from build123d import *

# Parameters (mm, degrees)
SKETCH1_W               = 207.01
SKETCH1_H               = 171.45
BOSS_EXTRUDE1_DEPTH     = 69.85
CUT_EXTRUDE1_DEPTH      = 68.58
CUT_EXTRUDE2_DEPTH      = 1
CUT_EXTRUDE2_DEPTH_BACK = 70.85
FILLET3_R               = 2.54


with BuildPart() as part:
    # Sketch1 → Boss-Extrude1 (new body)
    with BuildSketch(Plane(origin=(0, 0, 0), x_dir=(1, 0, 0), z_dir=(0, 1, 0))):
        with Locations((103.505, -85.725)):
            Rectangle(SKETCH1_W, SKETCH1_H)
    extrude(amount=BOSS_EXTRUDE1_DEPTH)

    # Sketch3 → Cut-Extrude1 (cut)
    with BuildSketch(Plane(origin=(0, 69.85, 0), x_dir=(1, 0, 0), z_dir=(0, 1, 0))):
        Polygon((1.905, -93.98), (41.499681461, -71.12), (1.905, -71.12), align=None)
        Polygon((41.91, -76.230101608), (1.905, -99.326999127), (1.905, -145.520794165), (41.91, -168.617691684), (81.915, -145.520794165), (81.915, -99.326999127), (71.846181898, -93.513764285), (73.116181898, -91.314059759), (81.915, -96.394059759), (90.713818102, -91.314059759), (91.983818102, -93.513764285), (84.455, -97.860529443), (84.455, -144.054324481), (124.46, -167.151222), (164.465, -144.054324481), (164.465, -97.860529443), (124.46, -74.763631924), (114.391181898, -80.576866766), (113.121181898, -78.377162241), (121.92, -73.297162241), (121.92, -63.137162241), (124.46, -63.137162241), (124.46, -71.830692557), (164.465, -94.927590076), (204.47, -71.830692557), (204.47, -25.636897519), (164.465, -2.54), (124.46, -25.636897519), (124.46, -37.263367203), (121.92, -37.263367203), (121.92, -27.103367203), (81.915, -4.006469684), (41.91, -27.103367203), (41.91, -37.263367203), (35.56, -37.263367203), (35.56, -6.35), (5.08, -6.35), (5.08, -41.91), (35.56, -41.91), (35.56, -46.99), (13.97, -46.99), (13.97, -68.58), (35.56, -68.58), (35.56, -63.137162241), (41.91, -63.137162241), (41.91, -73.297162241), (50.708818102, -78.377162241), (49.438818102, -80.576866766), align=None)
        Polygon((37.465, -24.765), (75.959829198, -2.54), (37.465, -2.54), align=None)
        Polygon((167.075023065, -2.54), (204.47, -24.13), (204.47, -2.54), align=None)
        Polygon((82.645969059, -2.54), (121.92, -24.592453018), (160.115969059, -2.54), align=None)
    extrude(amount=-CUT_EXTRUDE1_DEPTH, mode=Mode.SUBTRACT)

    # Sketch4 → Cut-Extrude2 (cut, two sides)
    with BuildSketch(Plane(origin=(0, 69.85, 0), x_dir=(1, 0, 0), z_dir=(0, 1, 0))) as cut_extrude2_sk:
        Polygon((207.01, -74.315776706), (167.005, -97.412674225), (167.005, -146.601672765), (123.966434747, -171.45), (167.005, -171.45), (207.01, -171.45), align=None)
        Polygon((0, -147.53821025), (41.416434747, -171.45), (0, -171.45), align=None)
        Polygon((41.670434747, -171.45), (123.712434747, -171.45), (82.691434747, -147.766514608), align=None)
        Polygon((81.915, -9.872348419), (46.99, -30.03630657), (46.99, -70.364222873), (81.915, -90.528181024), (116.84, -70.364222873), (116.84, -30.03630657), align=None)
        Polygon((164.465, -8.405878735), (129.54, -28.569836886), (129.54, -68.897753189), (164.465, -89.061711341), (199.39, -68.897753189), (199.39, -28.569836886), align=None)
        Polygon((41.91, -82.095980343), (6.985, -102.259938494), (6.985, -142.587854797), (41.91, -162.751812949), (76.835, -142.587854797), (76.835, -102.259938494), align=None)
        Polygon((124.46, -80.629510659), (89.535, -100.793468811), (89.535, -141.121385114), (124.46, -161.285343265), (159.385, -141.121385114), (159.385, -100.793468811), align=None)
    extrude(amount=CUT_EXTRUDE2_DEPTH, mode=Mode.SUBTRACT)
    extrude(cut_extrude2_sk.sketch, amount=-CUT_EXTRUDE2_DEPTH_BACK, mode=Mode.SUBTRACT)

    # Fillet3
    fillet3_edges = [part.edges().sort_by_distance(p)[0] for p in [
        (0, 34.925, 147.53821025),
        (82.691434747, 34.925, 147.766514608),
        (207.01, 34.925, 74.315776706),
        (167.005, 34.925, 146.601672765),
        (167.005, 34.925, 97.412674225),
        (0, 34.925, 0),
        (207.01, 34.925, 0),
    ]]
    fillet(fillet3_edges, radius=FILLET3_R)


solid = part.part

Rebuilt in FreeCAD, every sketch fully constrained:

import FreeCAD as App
import Part
import Sketcher
Q = App.Units.Quantity


def edges_at(feature, points):
    """Names of the edges that pass closest to the given points."""
    edges = feature.Shape.Edges
    near = lambda p: min(range(len(edges)), key=lambda i: edges[i].distToShape(Part.Vertex(*p))[0])
    return sorted({f"Edge{near(p) + 1}" for p in points})


def add_polygon(sketch, points):
    """Adds a closed chain of lines whose ends are joined by coincident constraints."""
    first, n = sketch.GeometryCount, len(points)
    for a, b in zip(points, points[1:] + points[:1]):
        sketch.addGeometry(Part.LineSegment(App.Vector(*a, 0), App.Vector(*b, 0)), False)
    for i in range(n):
        sketch.addConstraint(Sketcher.Constraint("Coincident", first + i, 2, first + (i + 1) % n, 1))

doc = App.newDocument("Part")
body = doc.addObject("PartDesign::Body", "Body")

sketch1 = body.newObject("Sketcher::SketchObject", "Sketch")
sketch1.AttachmentSupport = (doc.getObject("XZ_Plane"), [""])
sketch1.MapMode = "FlatFace"
add_polygon(sketch1, [(0, 0), (0, 171), (207, 171), (207, 0)])
sketch1.addConstraint([
    Sketcher.Constraint("Vertical", 0),
    Sketcher.Constraint("Horizontal", 1),
    Sketcher.Constraint("Vertical", 2),
    Sketcher.Constraint("Horizontal", 3),
    Sketcher.Constraint("Coincident", 3, 2, -1, 1),
    Sketcher.Constraint("DistanceX", 1, 1, 1, 2, Q("8.15 in")),
    Sketcher.Constraint("DistanceY", 0, 1, 0, 2, Q("6.75 in")),
])
pad1 = body.newObject("PartDesign::Pad", "Pad")
pad1.Profile = sketch1
pad1.Length = Q("2.75 in")
pad1.Reversed = True

sketch2 = body.newObject("Sketcher::SketchObject", "Sketch001")
sketch2.AttachmentSupport = (doc.getObject("XZ_Plane"), [""])
sketch2.MapMode = "FlatFace"
sketch2.AttachmentOffset = App.Placement(App.Vector(0, 0, -2.75 * 25.4), App.Rotation())
add_polygon(sketch2, [(1.9, 94), (41.5, 71.1), (1.9, 71.1)])
add_polygon(sketch2, [(41.9, 76.2), (1.9, 99.3), (1.9, 145.5), (41.9, 168.6), (81.9, 145.5), (81.9, 99.3), (71.8, 93.5), (73.1, 91.3), (81.9, 96.4), (90.7, 91.3), (92, 93.5), (84.5, 97.9), (84.5, 144.1), (124.5, 167.2), (164.5, 144.1), (164.5, 97.9), (124.5, 74.8), (114.4, 80.6), (113.1, 78.4), (121.9, 73.3), (121.9, 63.1), (124.5, 63.1), (124.5, 71.8), (164.5, 94.9), (204.5, 71.8), (204.5, 25.6), (164.5, 2.5), (124.5, 25.6), (124.5, 37.3), (121.9, 37.3), (121.9, 27.1), (81.9, 4), (41.9, 27.1), (41.9, 37.3), (35.6, 37.3), (35.6, 6.3), (5.1, 6.3), (5.1, 41.9), (35.6, 41.9), (35.6, 47), (14, 47), (14, 68.6), (35.6, 68.6), (35.6, 63.1), (41.9, 63.1), (41.9, 73.3), (50.7, 78.4), (49.4, 80.6)])
add_polygon(sketch2, [(37.5, 24.8), (76, 2.5), (37.5, 2.5)])
add_polygon(sketch2, [(167.1, 2.5), (204.5, 24.1), (204.5, 2.5)])
add_polygon(sketch2, [(82.6, 2.5), (121.9, 24.6), (160.1, 2.5)])
sketch2.addConstraint([
    Sketcher.Constraint("Horizontal", 1),
    Sketcher.Constraint("Vertical", 2),
    Sketcher.Constraint("Vertical", 4),
    Sketcher.Constraint("Vertical", 7),
    Sketcher.Constraint("Vertical", 14),
    Sketcher.Constraint("Vertical", 17),
    Sketcher.Constraint("Vertical", 22),
    Sketcher.Constraint("Horizontal", 23),
    Sketcher.Constraint("Vertical", 24),
    Sketcher.Constraint("Vertical", 27),
    Sketcher.Constraint("Vertical", 30),
    Sketcher.Constraint("Horizontal", 31),
    Sketcher.Constraint("Vertical", 32),
    Sketcher.Constraint("Vertical", 35),
    Sketcher.Constraint("Horizontal", 36),
    Sketcher.Constraint("Vertical", 37),
    Sketcher.Constraint("Horizontal", 38),
    Sketcher.Constraint("Vertical", 39),
    Sketcher.Constraint("Horizontal", 40),
    Sketcher.Constraint("Vertical", 41),
    Sketcher.Constraint("Horizontal", 42),
    Sketcher.Constraint("Vertical", 43),
    Sketcher.Constraint("Horizontal", 44),
    Sketcher.Constraint("Vertical", 45),
    Sketcher.Constraint("Horizontal", 46),
    Sketcher.Constraint("Vertical", 47),
    Sketcher.Constraint("Horizontal", 52),
    Sketcher.Constraint("Vertical", 53),
    Sketcher.Constraint("Vertical", 55),
    Sketcher.Constraint("Horizontal", 56),
    Sketcher.Constraint("Horizontal", 59),
    Sketcher.Constraint("Parallel", 0, 3),
    Sketcher.Constraint("Parallel", 3, 6),
    Sketcher.Constraint("Parallel", 5, 8),
    Sketcher.Constraint("Perpendicular", 8, 9),
    Sketcher.Constraint("Perpendicular", 9, 10),
    Sketcher.Constraint("Parallel", 6, 11),
    Sketcher.Constraint("Perpendicular", 11, 12),
    Sketcher.Constraint("Perpendicular", 12, 13),
    Sketcher.Constraint("Parallel", 10, 15),
    Sketcher.Constraint("Parallel", 13, 16),
    Sketcher.Constraint("Parallel", 15, 18),
    Sketcher.Constraint("Parallel", 16, 19),
    Sketcher.Constraint("Perpendicular", 19, 20),
    Sketcher.Constraint("Perpendicular", 20, 21),
    Sketcher.Constraint("Parallel", 18, 25),
    Sketcher.Constraint("Parallel", 21, 26),
    Sketcher.Constraint("Parallel", 25, 28),
    Sketcher.Constraint("Parallel", 26, 29),
    Sketcher.Constraint("Parallel", 28, 33),
    Sketcher.Constraint("Parallel", 29, 34),
    Sketcher.Constraint("Parallel", 33, 48),
    Sketcher.Constraint("Perpendicular", 48, 49),
    Sketcher.Constraint("Perpendicular", 49, 50),
    Sketcher.Constraint("Parallel", 34, 51),
    Sketcher.Constraint("Parallel", 50, 54),
    Sketcher.Constraint("Parallel", 51, 58),
    Sketcher.Constraint("Horizontal", 4, 2, 6, 2),
    Sketcher.Constraint("Horizontal", 3, 2, 7, 2),
    Sketcher.Constraint("Horizontal", 9, 2, 11, 2),
    Sketcher.Constraint("Horizontal", 8, 2, 12, 2),
    Sketcher.Constraint("Horizontal", 14, 2, 16, 2),
    Sketcher.Constraint("Horizontal", 13, 2, 17, 2),
    Sketcher.Constraint("Horizontal", 24, 2, 26, 2),
    Sketcher.Constraint("Horizontal", 27, 2, 29, 2),
    Sketcher.Constraint("Horizontal", 32, 2, 34, 2),
    Sketcher.Constraint("Horizontal", 31, 2, 35, 2),
    Sketcher.Constraint("Horizontal", 23, 2, 45, 2),
    Sketcher.Constraint("Horizontal", 21, 2, 47, 2),
    Sketcher.Constraint("Horizontal", 20, 2, 48, 2),
    Sketcher.Constraint("Horizontal", 19, 2, 49, 2),
    Sketcher.Constraint("Horizontal", 28, 2, 51, 2),
    Sketcher.Constraint("Horizontal", 52, 2, 55, 2),
    Sketcher.Constraint("Horizontal", 56, 2, 58, 2),
    Sketcher.Constraint("Vertical", 2, 2, 3, 2),
    Sketcher.Constraint("Vertical", 7, 2, 10, 2),
    Sketcher.Constraint("Vertical", 15, 2, 18, 2),
    Sketcher.Constraint("Vertical", 18, 2, 23, 2),
    Sketcher.Constraint("Vertical", 17, 2, 25, 2),
    Sketcher.Constraint("Vertical", 25, 2, 28, 2),
    Sketcher.Constraint("Vertical", 24, 2, 29, 2),
    Sketcher.Constraint("Vertical", 22, 2, 31, 2),
    Sketcher.Constraint("Vertical", 10, 2, 33, 2),
    Sketcher.Constraint("Vertical", 5, 2, 34, 2),
    Sketcher.Constraint("Vertical", 37, 2, 40, 2),
    Sketcher.Constraint("Vertical", 41, 2, 44, 2),
    Sketcher.Constraint("Vertical", 35, 2, 46, 2),
    Sketcher.Constraint("Vertical", 27, 2, 54, 2),
    Sketcher.Constraint("Vertical", 32, 2, 57, 2),
    Sketcher.Constraint("Equal", 7, 14),
    Sketcher.Constraint("Equal", 17, 27),
    Sketcher.Constraint("Equal", 22, 32),
    Sketcher.Constraint("Equal", 44, 43),
    Sketcher.Constraint("Equal", 43, 55),
    Sketcher.Constraint("Equal", 6, 15),
    Sketcher.Constraint("Equal", 8, 19),
    Sketcher.Constraint("Equal", 12, 20),
    Sketcher.Constraint("Equal", 11, 21),
    Sketcher.Constraint("DistanceX", 23, 1, 23, 2, Q("0.1 in")),
    Sketcher.Constraint("DistanceX", 38, 2, 38, 1, Q("1.2 in")),
    Sketcher.Constraint("DistanceY", 2, 1, 2, 2, Q("0.9 in")),
    Sketcher.Constraint("DistanceY", 22, 2, 22, 1, Q("0.4 in")),
    Sketcher.Constraint("DistanceY", 39, 1, 39, 2, Q("1.4 in")),
    Sketcher.Constraint("DistanceY", 41, 1, 41, 2, Q("0.2 in")),
    Sketcher.Constraint("Angle", 0, Q("-30 deg")),
    Sketcher.Constraint("DistanceY", 43, 2, 2, 2, Q("1 in")),
    Sketcher.Constraint("Distance", 10, Q("0.4 in")),
    Sketcher.Constraint("Distance", 54, Q("1.7 in")),
    Sketcher.Constraint("DistanceX", 36, 2, 36, 1, Q("0.25 in")),
    Sketcher.Constraint("DistanceX", 59, 2, 59, 1, Q("3.05 in")),
    Sketcher.Constraint("DistanceY", -1, 1, 0, 2, Q("2.8 in")),
    Sketcher.Constraint("DistanceX", -1, 1, 15, 2, Q("4.9 in")),
    Sketcher.Constraint("DistanceY", -1, 1, 28, 2, Q("0.1 in")),
    Sketcher.Constraint("DistanceX", -1, 1, 36, 2, Q("1.4 in")),
    Sketcher.Constraint("Distance", 51, Q("1.75 in")),
    Sketcher.Constraint("DistanceX", -1, 1, 52, 2, Q("1.475 in")),
    Sketcher.Constraint("DistanceY", 24, 1, 24, 2, 8.69353),
    Sketcher.Constraint("DistanceY", 30, 1, 30, 2, 11.62647),
    Sketcher.Constraint("DistanceY", -1, 1, 3, 2, 99.326999),
    Sketcher.Constraint("Distance", 57, 45.041761),
])
pocket1 = body.newObject("PartDesign::Pocket", "Pocket")
pocket1.Profile = sketch2
pocket1.Length = Q("2.7 in")
pocket1.Reversed = True

sketch3 = body.newObject("Sketcher::SketchObject", "Sketch002")
sketch3.AttachmentSupport = (doc.getObject("XZ_Plane"), [""])
sketch3.MapMode = "FlatFace"
sketch3.AttachmentOffset = App.Placement(App.Vector(0, 0, -2.75 * 25.4), App.Rotation())
add_polygon(sketch3, [(207, 74), (167, 97), (167, 147), (124, 171), (207, 171)])
add_polygon(sketch3, [(41, 171), (0, 148), (0, 171)])
add_polygon(sketch3, [(42, 171), (124, 171), (83, 148)])
add_polygon(sketch3, [(82, 10), (47, 30), (47, 70), (82, 91), (117, 70), (117, 30)])
add_polygon(sketch3, [(164, 8), (130, 29), (130, 69), (164, 89), (199, 69), (199, 29)])
add_polygon(sketch3, [(42, 82), (7, 102), (7, 143), (42, 163), (77, 143), (77, 102)])
add_polygon(sketch3, [(124, 81), (90, 101), (90, 141), (124, 161), (159, 141), (159, 101)])
sketch3.addConstraint([
    Sketcher.Constraint("Vertical", 1),
    Sketcher.Constraint("Horizontal", 3),
    Sketcher.Constraint("Vertical", 4),
    Sketcher.Constraint("Vertical", 6),
    Sketcher.Constraint("Horizontal", 7),
    Sketcher.Constraint("Horizontal", 8),
    Sketcher.Constraint("Vertical", 12),
    Sketcher.Constraint("Vertical", 15),
    Sketcher.Constraint("Vertical", 18),
    Sketcher.Constraint("Vertical", 21),
    Sketcher.Constraint("Vertical", 24),
    Sketcher.Constraint("Vertical", 27),
    Sketcher.Constraint("Vertical", 30),
    Sketcher.Constraint("Vertical", 33),
    Sketcher.Constraint("PointOnObject", 5, 2, -2),
    Sketcher.Constraint("Parallel", 0, 2),
    Sketcher.Constraint("Parallel", 5, 9),
    Sketcher.Constraint("Parallel", 2, 10),
    Sketcher.Constraint("Parallel", 10, 11),
    Sketcher.Constraint("Parallel", 9, 13),
    Sketcher.Constraint("Parallel", 11, 14),
    Sketcher.Constraint("Parallel", 13, 16),
    Sketcher.Constraint("Parallel", 14, 17),
    Sketcher.Constraint("Parallel", 16, 19),
    Sketcher.Constraint("Parallel", 17, 20),
    Sketcher.Constraint("Parallel", 19, 22),
    Sketcher.Constraint("Parallel", 20, 23),
    Sketcher.Constraint("Parallel", 22, 25),
    Sketcher.Constraint("Parallel", 23, 26),
    Sketcher.Constraint("Parallel", 25, 28),
    Sketcher.Constraint("Parallel", 26, 29),
    Sketcher.Constraint("Parallel", 28, 31),
    Sketcher.Constraint("Parallel", 29, 32),
    Sketcher.Constraint("Parallel", 31, 34),
    Sketcher.Constraint("Horizontal", 3, 2, 6, 2),
    Sketcher.Constraint("Horizontal", 7, 2, 8, 2),
    Sketcher.Constraint("Horizontal", 12, 2, 14, 2),
    Sketcher.Constraint("Horizontal", 11, 2, 15, 2),
    Sketcher.Constraint("Horizontal", 18, 2, 20, 2),
    Sketcher.Constraint("Horizontal", 17, 2, 21, 2),
    Sketcher.Constraint("Horizontal", 24, 2, 26, 2),
    Sketcher.Constraint("Horizontal", 23, 2, 27, 2),
    Sketcher.Constraint("Horizontal", 30, 2, 32, 2),
    Sketcher.Constraint("Horizontal", 29, 2, 33, 2),
    Sketcher.Constraint("Vertical", 13, 2, 16, 2),
    Sketcher.Constraint("Equal", 15, 18),
    Sketcher.Constraint("Equal", 21, 24),
    Sketcher.Constraint("Equal", 27, 30),
    Sketcher.Constraint("Equal", 16, 17),
    Sketcher.Constraint("Equal", 22, 23),
    Sketcher.Constraint("Equal", 28, 29),
    Sketcher.Constraint("Angle", 0, Q("150 deg")),
    Sketcher.Constraint("DistanceX", 8, 1, 8, 2, Q("3.23 in")),
    Sketcher.Constraint("DistanceX", -1, 1, 14, 2, Q("4.6 in")),
    Sketcher.Constraint("DistanceX", -1, 1, 17, 2, Q("5.1 in")),
    Sketcher.Constraint("DistanceX", -1, 1, 31, 2, Q("4.9 in")),
    Sketcher.Constraint("DistanceX", 19, 2, 0, 2, Q("0.1 in")),
    Sketcher.Constraint("DistanceX", 20, 2, 4, 2, Q("0.3 in")),
    Sketcher.Constraint("DistanceX", 26, 2, 13, 2, Q("0.2 in")),
    Sketcher.Constraint("DistanceY", -1, 1, 2, 2, Q("6.75 in")),
    Sketcher.Constraint("DistanceX", -1, 1, 3, 2, Q("8.15 in")),
    Sketcher.Constraint("DistanceX", 7, 2, 2, 2, Q("3.25 in")),
    Sketcher.Constraint("DistanceX", 8, 2, 2, 2, Q("0.01 in")),
    Sketcher.Constraint("DistanceY", 1, 1, 1, 2, 49.188999),
    Sketcher.Constraint("DistanceY", 6, 1, 6, 2, 23.91179),
    Sketcher.Constraint("DistanceY", 9, 2, 25, 2, 14.985298),
    Sketcher.Constraint("DistanceY", 28, 2, 13, 2, 8.432201),
    Sketcher.Constraint("DistanceY", 34, 2, 19, 2, 8.432201),
    Sketcher.Constraint("DistanceY", 12, 1, 12, 2, 40.327916),
    Sketcher.Constraint("DistanceY", -1, 1, 19, 2, 89.061711),
])
pocket2 = body.newObject("PartDesign::Pocket", "Pocket001")
pocket2.Profile = sketch3
pocket2.Type = "ThroughAll"
pocket2.Midplane = True
doc.recompute()

fillet = body.newObject("PartDesign::Fillet", "Fillet")
fillet.Base = (pocket2, edges_at(pocket2, [
    (0, 34.925, 147.538),
    (82.691, 34.925, 147.767),
    (207.01, 34.925, 74.316),
    (167.005, 34.925, 146.602),
    (167.005, 34.925, 97.413),
    (0, 34.925, 0),
    (207.01, 34.925, 0),
]))
fillet.Radius = Q("0.1 in")

doc.recompute()
